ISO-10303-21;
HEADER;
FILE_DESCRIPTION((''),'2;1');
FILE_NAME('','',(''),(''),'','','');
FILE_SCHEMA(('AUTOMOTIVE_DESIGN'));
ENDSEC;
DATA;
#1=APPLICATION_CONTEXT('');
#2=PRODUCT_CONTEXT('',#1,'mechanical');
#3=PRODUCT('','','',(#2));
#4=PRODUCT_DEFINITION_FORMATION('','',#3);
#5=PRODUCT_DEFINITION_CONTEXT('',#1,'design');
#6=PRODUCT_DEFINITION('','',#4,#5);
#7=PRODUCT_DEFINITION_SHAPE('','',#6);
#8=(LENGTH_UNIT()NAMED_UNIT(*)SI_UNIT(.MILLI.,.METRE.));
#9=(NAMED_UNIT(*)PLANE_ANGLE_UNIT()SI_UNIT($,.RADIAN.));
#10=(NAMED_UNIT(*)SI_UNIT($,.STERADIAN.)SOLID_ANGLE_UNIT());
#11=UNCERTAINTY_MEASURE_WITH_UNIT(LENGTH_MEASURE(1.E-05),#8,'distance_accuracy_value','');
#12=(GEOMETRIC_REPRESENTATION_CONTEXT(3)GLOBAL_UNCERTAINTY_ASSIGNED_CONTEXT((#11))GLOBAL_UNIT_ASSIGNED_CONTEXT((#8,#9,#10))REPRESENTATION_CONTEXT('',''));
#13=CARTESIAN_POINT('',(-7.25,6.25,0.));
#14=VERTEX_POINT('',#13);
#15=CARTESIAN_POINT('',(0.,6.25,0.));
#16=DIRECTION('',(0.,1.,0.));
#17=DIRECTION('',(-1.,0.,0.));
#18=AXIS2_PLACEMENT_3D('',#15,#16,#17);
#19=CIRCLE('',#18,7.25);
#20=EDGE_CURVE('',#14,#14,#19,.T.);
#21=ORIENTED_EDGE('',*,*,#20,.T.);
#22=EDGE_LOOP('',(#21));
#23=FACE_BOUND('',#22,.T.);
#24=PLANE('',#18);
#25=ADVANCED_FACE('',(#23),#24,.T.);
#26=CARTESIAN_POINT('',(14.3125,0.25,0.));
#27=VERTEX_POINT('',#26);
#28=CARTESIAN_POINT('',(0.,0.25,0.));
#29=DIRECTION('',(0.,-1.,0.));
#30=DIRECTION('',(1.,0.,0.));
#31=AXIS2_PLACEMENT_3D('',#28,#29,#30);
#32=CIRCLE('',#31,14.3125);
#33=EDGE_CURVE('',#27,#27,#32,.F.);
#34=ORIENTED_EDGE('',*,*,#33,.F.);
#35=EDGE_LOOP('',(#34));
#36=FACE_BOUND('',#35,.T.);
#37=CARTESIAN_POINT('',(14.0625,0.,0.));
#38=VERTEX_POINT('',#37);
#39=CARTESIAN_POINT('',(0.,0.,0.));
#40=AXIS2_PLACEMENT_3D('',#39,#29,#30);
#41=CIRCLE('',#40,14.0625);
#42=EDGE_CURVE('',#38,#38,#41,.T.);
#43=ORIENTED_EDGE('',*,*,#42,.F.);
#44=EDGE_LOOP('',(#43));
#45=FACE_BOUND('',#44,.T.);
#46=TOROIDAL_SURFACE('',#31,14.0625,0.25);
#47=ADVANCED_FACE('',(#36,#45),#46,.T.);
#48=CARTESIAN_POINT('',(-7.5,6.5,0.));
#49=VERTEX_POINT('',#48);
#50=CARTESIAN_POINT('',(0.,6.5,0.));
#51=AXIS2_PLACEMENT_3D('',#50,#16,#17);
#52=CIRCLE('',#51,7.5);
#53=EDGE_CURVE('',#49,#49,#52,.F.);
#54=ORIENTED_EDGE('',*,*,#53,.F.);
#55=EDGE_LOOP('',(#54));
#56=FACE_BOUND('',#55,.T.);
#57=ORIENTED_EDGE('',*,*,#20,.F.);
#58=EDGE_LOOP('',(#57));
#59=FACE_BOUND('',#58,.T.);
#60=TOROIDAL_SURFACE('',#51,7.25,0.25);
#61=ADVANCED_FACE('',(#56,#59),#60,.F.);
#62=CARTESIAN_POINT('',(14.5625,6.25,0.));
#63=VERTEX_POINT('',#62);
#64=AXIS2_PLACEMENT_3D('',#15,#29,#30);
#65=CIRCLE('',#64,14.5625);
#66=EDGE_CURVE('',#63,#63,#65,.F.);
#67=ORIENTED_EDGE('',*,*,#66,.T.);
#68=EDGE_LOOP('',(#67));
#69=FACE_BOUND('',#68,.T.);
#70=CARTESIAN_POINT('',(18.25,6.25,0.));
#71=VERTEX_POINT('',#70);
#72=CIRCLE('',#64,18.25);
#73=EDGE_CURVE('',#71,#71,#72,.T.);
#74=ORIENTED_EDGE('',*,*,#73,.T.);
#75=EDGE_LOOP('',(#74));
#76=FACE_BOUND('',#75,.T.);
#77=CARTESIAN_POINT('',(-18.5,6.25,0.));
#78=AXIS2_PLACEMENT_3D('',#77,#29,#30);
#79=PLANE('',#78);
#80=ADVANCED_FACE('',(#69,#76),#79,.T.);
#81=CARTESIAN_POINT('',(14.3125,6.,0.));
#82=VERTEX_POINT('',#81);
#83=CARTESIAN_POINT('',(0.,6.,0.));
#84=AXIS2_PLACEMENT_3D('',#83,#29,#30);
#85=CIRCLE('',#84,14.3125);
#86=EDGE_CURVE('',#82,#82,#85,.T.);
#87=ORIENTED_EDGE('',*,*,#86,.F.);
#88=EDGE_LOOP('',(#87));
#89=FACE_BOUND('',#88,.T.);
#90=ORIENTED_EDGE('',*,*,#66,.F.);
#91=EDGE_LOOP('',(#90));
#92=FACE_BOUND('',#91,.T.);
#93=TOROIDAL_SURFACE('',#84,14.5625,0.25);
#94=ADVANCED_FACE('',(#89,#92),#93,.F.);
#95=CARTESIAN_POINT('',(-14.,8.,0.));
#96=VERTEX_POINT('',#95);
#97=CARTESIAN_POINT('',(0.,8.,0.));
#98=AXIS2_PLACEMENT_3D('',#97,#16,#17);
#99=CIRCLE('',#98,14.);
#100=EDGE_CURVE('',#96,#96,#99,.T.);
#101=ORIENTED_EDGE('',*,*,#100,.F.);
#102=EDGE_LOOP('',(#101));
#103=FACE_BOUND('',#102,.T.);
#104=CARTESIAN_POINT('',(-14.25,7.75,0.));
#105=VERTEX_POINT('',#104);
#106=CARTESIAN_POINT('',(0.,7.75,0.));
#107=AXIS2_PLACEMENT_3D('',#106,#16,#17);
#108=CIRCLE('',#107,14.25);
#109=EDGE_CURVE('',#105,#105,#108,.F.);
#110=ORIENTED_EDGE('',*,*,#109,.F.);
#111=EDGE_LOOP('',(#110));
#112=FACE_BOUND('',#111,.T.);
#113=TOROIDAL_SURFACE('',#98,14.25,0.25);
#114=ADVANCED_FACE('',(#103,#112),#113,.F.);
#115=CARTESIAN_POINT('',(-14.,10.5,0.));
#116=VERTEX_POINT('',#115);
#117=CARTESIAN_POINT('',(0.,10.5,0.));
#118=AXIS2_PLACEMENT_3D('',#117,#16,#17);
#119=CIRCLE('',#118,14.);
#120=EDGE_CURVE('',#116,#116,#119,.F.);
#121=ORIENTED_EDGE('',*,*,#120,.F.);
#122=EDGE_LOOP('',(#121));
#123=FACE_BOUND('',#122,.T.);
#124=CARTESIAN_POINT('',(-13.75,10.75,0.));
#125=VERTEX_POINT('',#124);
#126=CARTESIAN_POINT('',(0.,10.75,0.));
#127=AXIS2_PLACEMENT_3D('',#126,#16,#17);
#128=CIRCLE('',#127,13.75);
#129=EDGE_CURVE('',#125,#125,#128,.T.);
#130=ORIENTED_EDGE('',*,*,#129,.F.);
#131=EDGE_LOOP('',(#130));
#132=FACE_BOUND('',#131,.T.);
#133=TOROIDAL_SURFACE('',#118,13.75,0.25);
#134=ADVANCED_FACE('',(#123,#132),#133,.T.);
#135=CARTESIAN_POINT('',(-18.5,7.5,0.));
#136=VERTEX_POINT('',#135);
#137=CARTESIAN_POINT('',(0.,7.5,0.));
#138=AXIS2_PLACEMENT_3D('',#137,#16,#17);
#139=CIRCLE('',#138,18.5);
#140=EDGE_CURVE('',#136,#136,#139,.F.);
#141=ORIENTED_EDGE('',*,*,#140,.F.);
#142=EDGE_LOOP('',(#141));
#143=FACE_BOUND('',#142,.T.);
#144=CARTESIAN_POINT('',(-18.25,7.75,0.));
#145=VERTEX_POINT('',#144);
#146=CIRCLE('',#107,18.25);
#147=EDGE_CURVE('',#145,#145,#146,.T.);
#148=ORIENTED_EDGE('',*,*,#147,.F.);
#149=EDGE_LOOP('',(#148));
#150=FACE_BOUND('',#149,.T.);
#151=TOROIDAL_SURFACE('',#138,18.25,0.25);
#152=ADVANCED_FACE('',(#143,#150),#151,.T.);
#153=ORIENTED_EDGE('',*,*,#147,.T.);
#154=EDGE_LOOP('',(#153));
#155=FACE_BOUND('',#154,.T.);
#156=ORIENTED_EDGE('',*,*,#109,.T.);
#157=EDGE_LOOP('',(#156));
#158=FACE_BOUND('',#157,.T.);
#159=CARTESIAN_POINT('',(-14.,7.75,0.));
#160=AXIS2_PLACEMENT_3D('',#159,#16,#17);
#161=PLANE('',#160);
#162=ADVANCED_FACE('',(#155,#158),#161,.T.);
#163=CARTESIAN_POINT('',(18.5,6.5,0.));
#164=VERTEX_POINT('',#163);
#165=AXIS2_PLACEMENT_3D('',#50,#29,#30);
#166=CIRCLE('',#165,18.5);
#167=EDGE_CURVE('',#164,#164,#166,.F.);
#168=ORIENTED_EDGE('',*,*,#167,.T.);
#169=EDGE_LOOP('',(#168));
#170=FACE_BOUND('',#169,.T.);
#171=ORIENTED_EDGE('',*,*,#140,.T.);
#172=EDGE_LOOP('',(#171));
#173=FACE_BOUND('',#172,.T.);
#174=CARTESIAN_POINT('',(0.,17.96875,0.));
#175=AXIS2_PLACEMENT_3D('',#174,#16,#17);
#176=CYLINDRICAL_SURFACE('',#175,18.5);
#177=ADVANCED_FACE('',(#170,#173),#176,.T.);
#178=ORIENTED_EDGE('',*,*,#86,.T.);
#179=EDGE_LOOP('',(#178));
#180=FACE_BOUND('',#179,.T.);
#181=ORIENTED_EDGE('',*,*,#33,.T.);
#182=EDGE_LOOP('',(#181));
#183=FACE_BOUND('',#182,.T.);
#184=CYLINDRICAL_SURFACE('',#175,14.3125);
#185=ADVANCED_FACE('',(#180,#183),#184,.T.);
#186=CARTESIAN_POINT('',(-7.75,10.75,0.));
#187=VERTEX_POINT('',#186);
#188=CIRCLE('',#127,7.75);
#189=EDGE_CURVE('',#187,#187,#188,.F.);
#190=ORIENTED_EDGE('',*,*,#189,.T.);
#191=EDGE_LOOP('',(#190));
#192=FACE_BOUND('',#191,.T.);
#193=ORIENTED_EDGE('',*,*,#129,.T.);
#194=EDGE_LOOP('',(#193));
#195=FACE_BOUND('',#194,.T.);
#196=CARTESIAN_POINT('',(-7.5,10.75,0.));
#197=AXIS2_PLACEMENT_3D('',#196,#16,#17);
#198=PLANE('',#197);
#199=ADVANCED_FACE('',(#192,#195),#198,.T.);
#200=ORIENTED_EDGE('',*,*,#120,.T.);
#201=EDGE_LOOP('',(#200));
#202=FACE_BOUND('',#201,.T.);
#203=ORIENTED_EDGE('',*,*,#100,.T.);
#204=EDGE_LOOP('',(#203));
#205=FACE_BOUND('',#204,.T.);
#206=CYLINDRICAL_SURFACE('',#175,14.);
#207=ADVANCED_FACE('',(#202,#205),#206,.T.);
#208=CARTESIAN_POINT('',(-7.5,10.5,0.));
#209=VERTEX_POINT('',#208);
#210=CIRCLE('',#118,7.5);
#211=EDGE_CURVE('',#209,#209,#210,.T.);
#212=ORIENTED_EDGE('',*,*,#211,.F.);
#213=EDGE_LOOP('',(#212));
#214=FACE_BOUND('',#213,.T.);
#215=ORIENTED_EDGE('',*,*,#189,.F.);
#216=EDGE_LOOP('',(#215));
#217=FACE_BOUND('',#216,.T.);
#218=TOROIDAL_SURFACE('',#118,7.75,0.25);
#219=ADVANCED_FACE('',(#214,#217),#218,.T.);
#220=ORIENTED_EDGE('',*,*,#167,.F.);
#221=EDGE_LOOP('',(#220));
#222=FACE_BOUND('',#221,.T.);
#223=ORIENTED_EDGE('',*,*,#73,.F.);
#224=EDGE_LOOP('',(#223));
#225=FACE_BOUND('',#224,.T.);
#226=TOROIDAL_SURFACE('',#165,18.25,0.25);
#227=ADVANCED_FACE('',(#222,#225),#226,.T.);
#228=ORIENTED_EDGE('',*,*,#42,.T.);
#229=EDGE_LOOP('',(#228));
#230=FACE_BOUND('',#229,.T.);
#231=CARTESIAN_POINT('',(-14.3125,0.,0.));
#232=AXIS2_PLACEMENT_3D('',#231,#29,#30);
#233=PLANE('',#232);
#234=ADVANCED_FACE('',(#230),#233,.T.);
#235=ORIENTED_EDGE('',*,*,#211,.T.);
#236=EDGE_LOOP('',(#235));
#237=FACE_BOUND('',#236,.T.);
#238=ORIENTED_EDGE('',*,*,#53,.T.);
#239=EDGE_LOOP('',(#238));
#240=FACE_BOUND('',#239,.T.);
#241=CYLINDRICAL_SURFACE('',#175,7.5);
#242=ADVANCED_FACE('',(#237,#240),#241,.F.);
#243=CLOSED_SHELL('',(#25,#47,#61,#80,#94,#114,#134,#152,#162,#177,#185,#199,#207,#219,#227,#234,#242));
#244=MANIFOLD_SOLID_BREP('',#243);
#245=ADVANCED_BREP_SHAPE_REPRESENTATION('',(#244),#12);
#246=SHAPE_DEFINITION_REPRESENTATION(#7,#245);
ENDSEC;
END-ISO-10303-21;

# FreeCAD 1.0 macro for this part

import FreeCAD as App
import Part
import Sketcher


def edges_at(feature, points):
    """Names of the edges that pass closest to the given points."""
    edges = feature.Shape.Edges
    near = lambda p: min(range(len(edges)), key=lambda i: edges[i].distToShape(Part.Vertex(*p))[0])
    return sorted({f"Edge{near(p) + 1}" for p in points})

doc = App.newDocument("Part")
params = doc.addObject("Spreadsheet::Sheet", "Params")
for row, (alias, value) in enumerate([
    ("sketch1_height", "3 mm"),
    ("sketch1_width", "7.5 mm"),
    ("sketch1_width2", "6.5 mm"),
    ("sketch1_width3", "4.5 mm"),
    ("sketch1_height2", "6.25 mm"),
    ("revolution_angle", "360 deg"),
    ("fillet_radius", "0.25 mm"),
], start=1):
    params.set(f"A{row}", alias)
    params.set(f"B{row}", "=" + value)
    params.setAlias(f"B{row}", alias)

body = doc.addObject("PartDesign::Body", "Body")

# Sketch on XY plane
sketch1 = doc.addObject("Sketcher::SketchObject", "Sketch")
body.addObject(sketch1)
sketch1.AttachmentSupport = (doc.XY_Plane, [""])
sketch1.MapMode = "FlatFace"
sketch1.addGeometry([
    Part.LineSegment(App.Vector(0, 0, 0), App.Vector(0, 6.2, 0)),  # 0
    Part.LineSegment(App.Vector(0, 6.2, 0), App.Vector(-7.5, 6.2, 0)),  # 1
    Part.LineSegment(App.Vector(-7.5, 6.2, 0), App.Vector(-7.5, 10.8, 0)),  # 2
    Part.LineSegment(App.Vector(-7.5, 10.8, 0), App.Vector(-14, 10.8, 0)),  # 3
    Part.LineSegment(App.Vector(-14, 10.8, 0), App.Vector(-14, 7.8, 0)),  # 4
    Part.LineSegment(App.Vector(-14, 7.8, 0), App.Vector(-18.5, 7.8, 0)),  # 5
    Part.LineSegment(App.Vector(-18.5, 7.8, 0), App.Vector(-18.5, 6.2, 0)),  # 6
    Part.LineSegment(App.Vector(-18.5, 6.2, 0), App.Vector(-14.3, 6.2, 0)),  # 7
    Part.LineSegment(App.Vector(-14.3, 6.2, 0), App.Vector(-14.3, 0, 0)),  # 8
    Part.LineSegment(App.Vector(-14.3, 0, 0), App.Vector(0, 0, 0)),  # 9
], False)
sketch1.addConstraint([
    Sketcher.Constraint("Coincident", 0, 2, 1, 1),
    Sketcher.Constraint("Coincident", 1, 2, 2, 1),
    Sketcher.Constraint("Coincident", 2, 2, 3, 1),
    Sketcher.Constraint("Coincident", 3, 2, 4, 1),
    Sketcher.Constraint("Coincident", 4, 2, 5, 1),
    Sketcher.Constraint("Coincident", 5, 2, 6, 1),
    Sketcher.Constraint("Coincident", 6, 2, 7, 1),
    Sketcher.Constraint("Coincident", 7, 2, 8, 1),
    Sketcher.Constraint("Coincident", 8, 2, 9, 1),
    Sketcher.Constraint("Coincident", 9, 2, 0, 1),
    Sketcher.Constraint("Vertical", 0),
    Sketcher.Constraint("Horizontal", 1),
    Sketcher.Constraint("Vertical", 2),
    Sketcher.Constraint("Horizontal", 3),
    Sketcher.Constraint("Vertical", 4),
    Sketcher.Constraint("Horizontal", 5),
    Sketcher.Constraint("Vertical", 6),
    Sketcher.Constraint("Horizontal", 7),
    Sketcher.Constraint("Vertical", 8),
    Sketcher.Constraint("Horizontal", 9),
    Sketcher.Constraint("Coincident", 9, 2, -1, 1),
    Sketcher.Constraint("Horizontal", 1, 2, 6, 2),
    Sketcher.Constraint("Equal", 5, 2),
    Sketcher.Constraint("DistanceY", 4, 2, 4, 1, 3.0),
    Sketcher.Constraint("DistanceX", 1, 2, 1, 1, 7.5),
    Sketcher.Constraint("DistanceX", 3, 2, 3, 1, 6.5),
    Sketcher.Constraint("DistanceX", 5, 2, 5, 1, 4.5),
    Sketcher.Constraint("DistanceY", 0, 1, 0, 2, 6.25),
    Sketcher.Constraint("DistanceX", 7, 1, 7, 2, 4.1875),
])
sketch1.setExpression("Constraints[23]", "Params.sketch1_height")
sketch1.setExpression("Constraints[24]", "Params.sketch1_width")
sketch1.setExpression("Constraints[25]", "Params.sketch1_width2")
sketch1.setExpression("Constraints[26]", "Params.sketch1_width3")
sketch1.setExpression("Constraints[27]", "Params.sketch1_height2")
revolution = doc.addObject("PartDesign::Revolution", "Revolution")
body.addObject(revolution)
revolution.Profile = sketch1
revolution.ReferenceAxis = (sketch1, ["V_Axis"])
revolution.setExpression("Angle", "Params.revolution_angle")
doc.recompute()

fillet = doc.addObject("PartDesign::Fillet", "Fillet")
body.addObject(fillet)
fillet.Base = (revolution, edges_at(revolution, [
    (14, 10.75, 0),
    (7.5, 10.75, 0),
    (7.5, 6.25, 0),
    (14.312, 0, 0),
    (14.312, 6.25, 0),
    (18.5, 6.25, 0),
    (18.5, 7.75, 0),
    (14, 7.75, 0),
]))
fillet.setExpression("Radius", "Params.fillet_radius")

doc.recompute()
